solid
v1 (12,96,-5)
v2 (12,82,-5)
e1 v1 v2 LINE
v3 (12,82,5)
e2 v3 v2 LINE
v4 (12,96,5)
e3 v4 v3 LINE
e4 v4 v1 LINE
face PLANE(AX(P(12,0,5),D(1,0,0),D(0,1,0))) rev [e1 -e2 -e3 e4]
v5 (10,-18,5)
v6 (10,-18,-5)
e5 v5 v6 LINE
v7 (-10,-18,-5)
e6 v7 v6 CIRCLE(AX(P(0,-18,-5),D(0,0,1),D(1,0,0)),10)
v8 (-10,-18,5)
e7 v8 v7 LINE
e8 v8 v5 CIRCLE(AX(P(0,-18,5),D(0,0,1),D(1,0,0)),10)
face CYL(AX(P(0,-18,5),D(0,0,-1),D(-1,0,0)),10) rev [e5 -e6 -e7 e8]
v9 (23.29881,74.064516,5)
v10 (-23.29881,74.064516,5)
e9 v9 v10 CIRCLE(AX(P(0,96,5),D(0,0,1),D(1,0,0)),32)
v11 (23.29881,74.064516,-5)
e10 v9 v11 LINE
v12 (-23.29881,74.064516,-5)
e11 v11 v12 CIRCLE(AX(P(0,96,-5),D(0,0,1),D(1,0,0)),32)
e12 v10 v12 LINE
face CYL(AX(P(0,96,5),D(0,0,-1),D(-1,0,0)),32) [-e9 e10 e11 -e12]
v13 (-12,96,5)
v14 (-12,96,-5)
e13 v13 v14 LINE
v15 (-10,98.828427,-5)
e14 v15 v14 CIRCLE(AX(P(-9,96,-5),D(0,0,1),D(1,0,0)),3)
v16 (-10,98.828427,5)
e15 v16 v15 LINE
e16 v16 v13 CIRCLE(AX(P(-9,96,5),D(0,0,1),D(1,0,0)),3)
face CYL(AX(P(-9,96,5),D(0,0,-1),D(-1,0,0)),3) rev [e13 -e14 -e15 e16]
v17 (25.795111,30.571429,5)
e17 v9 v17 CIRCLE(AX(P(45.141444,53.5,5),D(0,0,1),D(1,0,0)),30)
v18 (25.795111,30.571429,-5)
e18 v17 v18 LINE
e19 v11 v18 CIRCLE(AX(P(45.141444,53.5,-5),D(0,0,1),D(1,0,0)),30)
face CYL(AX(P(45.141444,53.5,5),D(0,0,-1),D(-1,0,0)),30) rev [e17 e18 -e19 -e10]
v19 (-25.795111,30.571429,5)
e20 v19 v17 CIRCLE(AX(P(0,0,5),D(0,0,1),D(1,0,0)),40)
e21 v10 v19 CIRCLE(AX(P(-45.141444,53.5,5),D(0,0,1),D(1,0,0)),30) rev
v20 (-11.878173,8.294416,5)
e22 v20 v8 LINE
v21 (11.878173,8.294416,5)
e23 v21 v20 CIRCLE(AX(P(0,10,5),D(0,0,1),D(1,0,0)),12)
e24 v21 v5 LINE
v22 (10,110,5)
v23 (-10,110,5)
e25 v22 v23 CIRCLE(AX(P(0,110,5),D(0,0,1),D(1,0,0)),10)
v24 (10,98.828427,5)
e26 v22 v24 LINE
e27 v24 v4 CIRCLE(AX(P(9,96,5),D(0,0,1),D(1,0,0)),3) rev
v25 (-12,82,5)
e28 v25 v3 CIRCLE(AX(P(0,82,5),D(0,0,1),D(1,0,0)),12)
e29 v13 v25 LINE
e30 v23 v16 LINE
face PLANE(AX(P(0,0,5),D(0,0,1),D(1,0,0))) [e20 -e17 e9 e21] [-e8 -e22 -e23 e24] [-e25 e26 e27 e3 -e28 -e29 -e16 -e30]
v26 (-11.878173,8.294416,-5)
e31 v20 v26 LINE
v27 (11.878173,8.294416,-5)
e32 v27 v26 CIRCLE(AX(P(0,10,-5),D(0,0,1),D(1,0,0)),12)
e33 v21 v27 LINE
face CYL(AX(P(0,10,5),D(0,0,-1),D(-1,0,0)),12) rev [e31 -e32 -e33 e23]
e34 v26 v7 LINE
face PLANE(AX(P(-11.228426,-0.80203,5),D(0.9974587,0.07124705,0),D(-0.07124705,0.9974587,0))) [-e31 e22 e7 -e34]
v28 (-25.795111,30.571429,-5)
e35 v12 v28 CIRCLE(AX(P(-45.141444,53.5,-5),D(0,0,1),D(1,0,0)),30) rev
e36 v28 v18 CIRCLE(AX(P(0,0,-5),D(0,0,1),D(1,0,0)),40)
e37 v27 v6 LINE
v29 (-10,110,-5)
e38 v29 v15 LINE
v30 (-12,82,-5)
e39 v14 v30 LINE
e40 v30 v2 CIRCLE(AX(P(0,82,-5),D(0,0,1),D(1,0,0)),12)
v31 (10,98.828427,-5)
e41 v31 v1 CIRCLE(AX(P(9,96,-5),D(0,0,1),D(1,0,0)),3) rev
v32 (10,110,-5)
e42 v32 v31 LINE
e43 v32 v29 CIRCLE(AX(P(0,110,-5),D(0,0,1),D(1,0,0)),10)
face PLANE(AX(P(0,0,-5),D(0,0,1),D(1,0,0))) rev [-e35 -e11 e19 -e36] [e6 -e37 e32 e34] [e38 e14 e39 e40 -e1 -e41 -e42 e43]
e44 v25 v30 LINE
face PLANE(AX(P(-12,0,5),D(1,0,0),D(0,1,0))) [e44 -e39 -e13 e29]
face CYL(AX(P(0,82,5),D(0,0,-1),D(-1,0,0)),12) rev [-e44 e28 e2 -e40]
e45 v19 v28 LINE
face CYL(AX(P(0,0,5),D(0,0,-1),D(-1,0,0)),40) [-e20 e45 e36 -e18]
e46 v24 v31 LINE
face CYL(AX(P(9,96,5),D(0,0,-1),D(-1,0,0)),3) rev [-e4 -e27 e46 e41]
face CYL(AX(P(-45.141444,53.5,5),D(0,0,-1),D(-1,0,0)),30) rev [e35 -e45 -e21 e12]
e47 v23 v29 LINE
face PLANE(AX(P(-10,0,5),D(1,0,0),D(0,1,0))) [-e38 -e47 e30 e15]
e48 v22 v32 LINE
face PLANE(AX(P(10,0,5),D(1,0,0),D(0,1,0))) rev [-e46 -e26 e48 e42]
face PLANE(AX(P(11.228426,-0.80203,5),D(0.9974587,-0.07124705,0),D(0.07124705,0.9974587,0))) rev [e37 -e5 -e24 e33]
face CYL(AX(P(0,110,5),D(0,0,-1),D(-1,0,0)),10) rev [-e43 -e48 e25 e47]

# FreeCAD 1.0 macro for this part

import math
import FreeCAD as App
import Part
import Sketcher

V = App.Vector

doc = App.newDocument("Part")
body = doc.addObject("PartDesign::Body", "Body")

# Sketch on XY plane
sketch1 = body.newObject("Sketcher::SketchObject", "Sketch")
sketch1.AttachmentSupport = (doc.getObject("XY_Plane"), [""])
sketch1.MapMode = "FlatFace"
sketch1.addGeometry([
    Part.ArcOfCircle(Part.Circle(V(0, 0, 0), V(0, 0, 1), 40), math.radians(130), math.radians(410)),  # 0
    Part.ArcOfCircle(Part.Circle(V(45.1, 53.5, 0), V(0, 0, 1), 30), math.radians(137), math.radians(230)),  # 1
    Part.ArcOfCircle(Part.Circle(V(0, 96, 0), V(0, 0, 1), 32), math.radians(-43), math.radians(90)),  # 2
    Part.ArcOfCircle(Part.Circle(V(0, 96, 0), V(0, 0, 1), 32), math.radians(90), math.radians(223)),  # 3
    Part.ArcOfCircle(Part.Circle(V(-45.1, 53.5, 0), V(0, 0, 1), 30), math.radians(-50), math.radians(43)),  # 4
    Part.LineSegment(V(-10, -18, 0), V(-11.9, 8.3, 0)),  # 5
    Part.ArcOfCircle(Part.Circle(V(0, 10, 0), V(0, 0, 1), 12), math.radians(180), math.radians(188.17)),  # 6
    Part.ArcOfCircle(Part.Circle(V(0, 10, 0), V(0, 0, 1), 12), math.radians(0), math.radians(180)),  # 7
    Part.ArcOfCircle(Part.Circle(V(0, 10, 0), V(0, 0, 1), 12), math.radians(-8.17), math.radians(0)),  # 8
    Part.LineSegment(V(11.9, 8.3, 0), V(10, -18, 0)),  # 9
    Part.ArcOfCircle(Part.Circle(V(0, -18, 0), V(0, 0, 1), 10), math.radians(180), math.radians(360)),  # 10
    Part.ArcOfCircle(Part.Circle(V(0, 82, 0), V(0, 0, 1), 12), math.radians(180), math.radians(360)),  # 11
    Part.LineSegment(V(-12, 82, 0), V(-12, 96, 0)),  # 12
    Part.ArcOfCircle(Part.Circle(V(-9, 96, 0), V(0, 0, 1), 3), math.radians(109), math.radians(180)),  # 13
    Part.LineSegment(V(-10, 98.8, 0), V(-10, 110, 0)),  # 14
    Part.ArcOfCircle(Part.Circle(V(0, 110, 0), V(0, 0, 1), 10), math.radians(0), math.radians(180)),  # 15
    Part.LineSegment(V(10, 110, 0), V(10, 98.8, 0)),  # 16
    Part.ArcOfCircle(Part.Circle(V(9, 96, 0), V(0, 0, 1), 3), math.radians(0), math.radians(71)),  # 17
    Part.LineSegment(V(12, 96, 0), V(12, 82, 0)),  # 18
], False)
sketch1.addConstraint([
    Sketcher.Constraint("Tangent", 0, 2, 1, 2),
    Sketcher.Constraint("Tangent", 1, 1, 2, 1),
    Sketcher.Constraint("Tangent", 2, 2, 3, 1),
    Sketcher.Constraint("Tangent", 3, 2, 4, 2),
    Sketcher.Constraint("Tangent", 4, 1, 0, 1),
    Sketcher.Constraint("Coincident", 5, 2, 6, 2),
    Sketcher.Constraint("Tangent", 6, 1, 7, 2),
    Sketcher.Constraint("Tangent", 7, 1, 8, 2),
    Sketcher.Constraint("Coincident", 8, 1, 9, 1),
    Sketcher.Constraint("Coincident", 9, 2, 10, 2),
    Sketcher.Constraint("Coincident", 10, 1, 5, 1),
    Sketcher.Constraint("Tangent", 11, 1, 12, 1),
    Sketcher.Constraint("Tangent", 12, 2, 13, 2),
    Sketcher.Constraint("Coincident", 13, 1, 14, 1),
    Sketcher.Constraint("Tangent", 14, 2, 15, 2),
    Sketcher.Constraint("Tangent", 15, 1, 16, 1),
    Sketcher.Constraint("Coincident", 16, 2, 17, 2),
    Sketcher.Constraint("Tangent", 17, 1, 18, 1),
    Sketcher.Constraint("Tangent", 18, 2, 11, 2),
    Sketcher.Constraint("Vertical", 12),
    Sketcher.Constraint("Vertical", 14),
    Sketcher.Constraint("Vertical", 16),
    Sketcher.Constraint("Vertical", 18),
    Sketcher.Constraint("Coincident", 0, 3, -1, 1),
    Sketcher.Constraint("Equal", 2, 3),
    Sketcher.Constraint("Equal", 1, 4),
    Sketcher.Constraint("Equal", 6, 7),
    Sketcher.Constraint("Equal", 7, 8),
    Sketcher.Constraint("Equal", 8, 11),
    Sketcher.Constraint("Equal", 10, 15),
    Sketcher.Constraint("Equal", 13, 17),
    Sketcher.Constraint("Symmetric", 13, 3, 17, 3, -2),
    Sketcher.Constraint("Symmetric", 6, 1, 7, 1, -2),
    Sketcher.Constraint("Symmetric", 9, 2, 10, 1, -2),
    Sketcher.Constraint("PointOnObject", 2, 3, -2),
    Sketcher.Constraint("PointOnObject", 15, 3, -2),
    Sketcher.Constraint("PointOnObject", 2, 2, -2),
    Sketcher.Constraint("Horizontal", 3, 3, 13, 3),
    Sketcher.Constraint("Horizontal", 8, 3, 6, 1),
    Sketcher.Constraint("Horizontal", 5, 2, 8, 1),
    Sketcher.Constraint("Horizontal", 10, 3, 9, 2),
    Sketcher.Constraint("Radius", 0, 40.0),
    Sketcher.Constraint("Radius", 1, 30.0),
    Sketcher.Constraint("Radius", 2, 32.0),
    Sketcher.Constraint("Radius", 6, 12.0),
    Sketcher.Constraint("Radius", 10, 10.0),
    Sketcher.Constraint("Radius", 13, 3.0),
    Sketcher.Constraint("DistanceY", 12, 1, 12, 2, 14.0),
    Sketcher.Constraint("DistanceY", -1, 1, 2, 3, 96.0),
    Sketcher.Constraint("DistanceY", -1, 1, 6, 3, 10.0),
    Sketcher.Constraint("DistanceY", 10, 3, -1, 1, 18.0),
    Sketcher.Constraint("DistanceY", -1, 1, 15, 3, 110.0),
    Sketcher.Constraint("Distance", 5, 26.361408),
])
pad1 = body.newObject("PartDesign::Pad", "Pad")
pad1.Profile = sketch1
pad1.Length = 10
pad1.Midplane = True

doc.recompute()
